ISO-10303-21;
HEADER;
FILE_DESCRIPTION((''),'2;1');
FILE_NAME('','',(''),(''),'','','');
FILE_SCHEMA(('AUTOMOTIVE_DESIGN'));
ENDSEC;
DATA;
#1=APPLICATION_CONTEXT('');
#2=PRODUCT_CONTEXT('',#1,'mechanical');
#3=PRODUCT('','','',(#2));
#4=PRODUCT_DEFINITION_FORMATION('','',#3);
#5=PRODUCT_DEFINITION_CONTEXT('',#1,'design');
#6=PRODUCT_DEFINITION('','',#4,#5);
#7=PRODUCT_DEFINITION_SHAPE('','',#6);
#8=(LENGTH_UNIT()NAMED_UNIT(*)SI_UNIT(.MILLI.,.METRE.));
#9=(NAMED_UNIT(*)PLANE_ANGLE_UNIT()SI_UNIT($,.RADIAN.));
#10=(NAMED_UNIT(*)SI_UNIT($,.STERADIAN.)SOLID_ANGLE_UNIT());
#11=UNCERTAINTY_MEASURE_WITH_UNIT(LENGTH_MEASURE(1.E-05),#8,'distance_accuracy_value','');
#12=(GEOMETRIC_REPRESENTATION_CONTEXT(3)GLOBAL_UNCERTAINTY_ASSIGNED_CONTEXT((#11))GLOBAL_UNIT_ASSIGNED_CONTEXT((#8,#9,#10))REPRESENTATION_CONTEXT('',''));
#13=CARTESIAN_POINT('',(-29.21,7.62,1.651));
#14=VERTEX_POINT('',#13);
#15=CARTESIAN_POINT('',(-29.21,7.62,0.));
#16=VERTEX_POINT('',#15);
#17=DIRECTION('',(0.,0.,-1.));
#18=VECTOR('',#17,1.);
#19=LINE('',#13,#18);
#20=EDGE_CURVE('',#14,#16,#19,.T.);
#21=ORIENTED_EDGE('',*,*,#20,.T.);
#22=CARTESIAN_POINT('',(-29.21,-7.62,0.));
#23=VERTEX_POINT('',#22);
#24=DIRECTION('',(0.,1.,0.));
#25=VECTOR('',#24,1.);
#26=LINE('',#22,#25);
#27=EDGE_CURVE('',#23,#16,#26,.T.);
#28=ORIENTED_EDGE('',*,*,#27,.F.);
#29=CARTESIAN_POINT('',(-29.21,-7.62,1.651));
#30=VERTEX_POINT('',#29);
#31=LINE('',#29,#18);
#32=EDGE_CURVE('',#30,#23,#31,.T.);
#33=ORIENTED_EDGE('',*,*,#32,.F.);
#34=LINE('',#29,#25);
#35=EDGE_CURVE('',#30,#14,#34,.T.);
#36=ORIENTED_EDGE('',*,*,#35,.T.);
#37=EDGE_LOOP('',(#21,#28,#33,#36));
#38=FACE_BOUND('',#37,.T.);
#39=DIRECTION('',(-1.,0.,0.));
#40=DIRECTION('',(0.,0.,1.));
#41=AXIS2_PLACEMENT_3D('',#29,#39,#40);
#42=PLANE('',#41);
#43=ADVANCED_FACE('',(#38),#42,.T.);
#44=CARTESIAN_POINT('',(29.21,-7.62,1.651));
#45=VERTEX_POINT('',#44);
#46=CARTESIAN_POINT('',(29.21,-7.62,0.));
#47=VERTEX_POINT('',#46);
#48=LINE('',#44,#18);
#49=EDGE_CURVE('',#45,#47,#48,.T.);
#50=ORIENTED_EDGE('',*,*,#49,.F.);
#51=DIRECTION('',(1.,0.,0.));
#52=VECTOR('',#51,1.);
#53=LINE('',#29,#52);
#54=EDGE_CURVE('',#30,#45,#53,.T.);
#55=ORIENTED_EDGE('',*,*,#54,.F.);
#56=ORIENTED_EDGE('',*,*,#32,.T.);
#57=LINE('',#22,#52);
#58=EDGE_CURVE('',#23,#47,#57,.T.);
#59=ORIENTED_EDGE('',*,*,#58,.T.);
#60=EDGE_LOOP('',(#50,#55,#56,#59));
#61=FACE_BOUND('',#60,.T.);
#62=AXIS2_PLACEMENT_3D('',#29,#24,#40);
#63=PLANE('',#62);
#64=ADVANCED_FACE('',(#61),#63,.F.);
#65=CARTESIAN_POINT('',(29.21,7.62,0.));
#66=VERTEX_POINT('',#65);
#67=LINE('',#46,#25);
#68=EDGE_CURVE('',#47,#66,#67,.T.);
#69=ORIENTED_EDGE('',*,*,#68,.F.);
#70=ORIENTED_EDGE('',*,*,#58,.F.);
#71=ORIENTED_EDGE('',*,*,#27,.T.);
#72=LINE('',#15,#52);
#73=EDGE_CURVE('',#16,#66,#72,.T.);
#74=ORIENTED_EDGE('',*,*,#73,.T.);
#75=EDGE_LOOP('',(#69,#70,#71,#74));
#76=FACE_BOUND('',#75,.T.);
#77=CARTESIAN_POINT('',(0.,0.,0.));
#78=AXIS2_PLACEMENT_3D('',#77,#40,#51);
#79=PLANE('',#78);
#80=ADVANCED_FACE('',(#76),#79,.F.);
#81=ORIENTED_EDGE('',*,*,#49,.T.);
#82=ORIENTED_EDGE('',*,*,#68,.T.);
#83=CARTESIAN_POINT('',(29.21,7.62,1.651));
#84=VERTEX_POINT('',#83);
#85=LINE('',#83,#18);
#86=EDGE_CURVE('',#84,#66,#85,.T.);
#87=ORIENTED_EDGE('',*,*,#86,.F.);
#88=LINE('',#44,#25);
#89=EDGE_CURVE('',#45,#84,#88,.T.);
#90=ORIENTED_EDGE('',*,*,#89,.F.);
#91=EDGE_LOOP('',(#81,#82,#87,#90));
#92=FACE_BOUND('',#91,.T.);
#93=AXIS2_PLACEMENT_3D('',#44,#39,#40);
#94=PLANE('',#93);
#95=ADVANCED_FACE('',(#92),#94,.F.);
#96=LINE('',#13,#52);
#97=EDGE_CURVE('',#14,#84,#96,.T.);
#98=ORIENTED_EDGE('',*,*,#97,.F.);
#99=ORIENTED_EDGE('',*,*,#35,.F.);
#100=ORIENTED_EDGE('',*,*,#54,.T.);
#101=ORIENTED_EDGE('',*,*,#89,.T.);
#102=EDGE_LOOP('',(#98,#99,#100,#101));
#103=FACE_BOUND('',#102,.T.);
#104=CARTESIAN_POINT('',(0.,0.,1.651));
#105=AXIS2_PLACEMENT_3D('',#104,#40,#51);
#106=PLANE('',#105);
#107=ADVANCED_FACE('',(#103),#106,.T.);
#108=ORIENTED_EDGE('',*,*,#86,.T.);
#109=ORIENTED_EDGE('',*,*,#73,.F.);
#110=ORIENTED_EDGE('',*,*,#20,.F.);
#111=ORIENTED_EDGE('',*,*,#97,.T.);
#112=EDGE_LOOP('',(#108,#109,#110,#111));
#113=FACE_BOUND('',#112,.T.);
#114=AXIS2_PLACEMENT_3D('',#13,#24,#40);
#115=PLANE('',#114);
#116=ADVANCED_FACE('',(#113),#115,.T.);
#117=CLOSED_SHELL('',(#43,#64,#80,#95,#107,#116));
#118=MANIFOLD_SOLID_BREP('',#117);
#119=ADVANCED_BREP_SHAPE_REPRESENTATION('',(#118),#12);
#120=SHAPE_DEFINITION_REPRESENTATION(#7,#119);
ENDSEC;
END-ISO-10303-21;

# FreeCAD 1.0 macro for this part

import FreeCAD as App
import Part
import Sketcher
from FreeCAD import Vector
Q = App.Units.Quantity

doc = App.newDocument("Part")
body = doc.addObject("PartDesign::Body", "Body")

sketch1 = body.newObject("Sketcher::SketchObject", "Sketch")
sketch1.AttachmentSupport = (doc.getObject("XY_Plane"), [""])
sketch1.MapMode = "FlatFace"
sketch1.addGeometry([
    Part.LineSegment(Vector(-29, 8, 0), Vector(-29, -8, 0)),
    Part.LineSegment(Vector(-29, -8, 0), Vector(29, -8, 0)),
    Part.LineSegment(Vector(29, -8, 0), Vector(29, 8, 0)),
    Part.LineSegment(Vector(29, 8, 0), Vector(-29, 8, 0)),
], False)
sketch1.addConstraint([
    Sketcher.Constraint("Coincident", 0, 2, 1, 1),
    Sketcher.Constraint("Coincident", 1, 2, 2, 1),
    Sketcher.Constraint("Coincident", 2, 2, 3, 1),
    Sketcher.Constraint("Coincident", 3, 2, 0, 1),
    Sketcher.Constraint("Vertical", 0),
    Sketcher.Constraint("Horizontal", 1),
    Sketcher.Constraint("Vertical", 2),
    Sketcher.Constraint("Horizontal", 3),
    Sketcher.Constraint("Symmetric", 0, 2, 2, 2, -1, 1),
    Sketcher.Constraint("DistanceX", 1, 1, 1, 2, Q("2.3 in")),
    Sketcher.Constraint("DistanceY", 0, 2, 0, 1, Q("0.6 in")),
])
pad1 = body.newObject("PartDesign::Pad", "Pad")
pad1.Profile = sketch1
pad1.Length = Q("0.065 in")

doc.recompute()
